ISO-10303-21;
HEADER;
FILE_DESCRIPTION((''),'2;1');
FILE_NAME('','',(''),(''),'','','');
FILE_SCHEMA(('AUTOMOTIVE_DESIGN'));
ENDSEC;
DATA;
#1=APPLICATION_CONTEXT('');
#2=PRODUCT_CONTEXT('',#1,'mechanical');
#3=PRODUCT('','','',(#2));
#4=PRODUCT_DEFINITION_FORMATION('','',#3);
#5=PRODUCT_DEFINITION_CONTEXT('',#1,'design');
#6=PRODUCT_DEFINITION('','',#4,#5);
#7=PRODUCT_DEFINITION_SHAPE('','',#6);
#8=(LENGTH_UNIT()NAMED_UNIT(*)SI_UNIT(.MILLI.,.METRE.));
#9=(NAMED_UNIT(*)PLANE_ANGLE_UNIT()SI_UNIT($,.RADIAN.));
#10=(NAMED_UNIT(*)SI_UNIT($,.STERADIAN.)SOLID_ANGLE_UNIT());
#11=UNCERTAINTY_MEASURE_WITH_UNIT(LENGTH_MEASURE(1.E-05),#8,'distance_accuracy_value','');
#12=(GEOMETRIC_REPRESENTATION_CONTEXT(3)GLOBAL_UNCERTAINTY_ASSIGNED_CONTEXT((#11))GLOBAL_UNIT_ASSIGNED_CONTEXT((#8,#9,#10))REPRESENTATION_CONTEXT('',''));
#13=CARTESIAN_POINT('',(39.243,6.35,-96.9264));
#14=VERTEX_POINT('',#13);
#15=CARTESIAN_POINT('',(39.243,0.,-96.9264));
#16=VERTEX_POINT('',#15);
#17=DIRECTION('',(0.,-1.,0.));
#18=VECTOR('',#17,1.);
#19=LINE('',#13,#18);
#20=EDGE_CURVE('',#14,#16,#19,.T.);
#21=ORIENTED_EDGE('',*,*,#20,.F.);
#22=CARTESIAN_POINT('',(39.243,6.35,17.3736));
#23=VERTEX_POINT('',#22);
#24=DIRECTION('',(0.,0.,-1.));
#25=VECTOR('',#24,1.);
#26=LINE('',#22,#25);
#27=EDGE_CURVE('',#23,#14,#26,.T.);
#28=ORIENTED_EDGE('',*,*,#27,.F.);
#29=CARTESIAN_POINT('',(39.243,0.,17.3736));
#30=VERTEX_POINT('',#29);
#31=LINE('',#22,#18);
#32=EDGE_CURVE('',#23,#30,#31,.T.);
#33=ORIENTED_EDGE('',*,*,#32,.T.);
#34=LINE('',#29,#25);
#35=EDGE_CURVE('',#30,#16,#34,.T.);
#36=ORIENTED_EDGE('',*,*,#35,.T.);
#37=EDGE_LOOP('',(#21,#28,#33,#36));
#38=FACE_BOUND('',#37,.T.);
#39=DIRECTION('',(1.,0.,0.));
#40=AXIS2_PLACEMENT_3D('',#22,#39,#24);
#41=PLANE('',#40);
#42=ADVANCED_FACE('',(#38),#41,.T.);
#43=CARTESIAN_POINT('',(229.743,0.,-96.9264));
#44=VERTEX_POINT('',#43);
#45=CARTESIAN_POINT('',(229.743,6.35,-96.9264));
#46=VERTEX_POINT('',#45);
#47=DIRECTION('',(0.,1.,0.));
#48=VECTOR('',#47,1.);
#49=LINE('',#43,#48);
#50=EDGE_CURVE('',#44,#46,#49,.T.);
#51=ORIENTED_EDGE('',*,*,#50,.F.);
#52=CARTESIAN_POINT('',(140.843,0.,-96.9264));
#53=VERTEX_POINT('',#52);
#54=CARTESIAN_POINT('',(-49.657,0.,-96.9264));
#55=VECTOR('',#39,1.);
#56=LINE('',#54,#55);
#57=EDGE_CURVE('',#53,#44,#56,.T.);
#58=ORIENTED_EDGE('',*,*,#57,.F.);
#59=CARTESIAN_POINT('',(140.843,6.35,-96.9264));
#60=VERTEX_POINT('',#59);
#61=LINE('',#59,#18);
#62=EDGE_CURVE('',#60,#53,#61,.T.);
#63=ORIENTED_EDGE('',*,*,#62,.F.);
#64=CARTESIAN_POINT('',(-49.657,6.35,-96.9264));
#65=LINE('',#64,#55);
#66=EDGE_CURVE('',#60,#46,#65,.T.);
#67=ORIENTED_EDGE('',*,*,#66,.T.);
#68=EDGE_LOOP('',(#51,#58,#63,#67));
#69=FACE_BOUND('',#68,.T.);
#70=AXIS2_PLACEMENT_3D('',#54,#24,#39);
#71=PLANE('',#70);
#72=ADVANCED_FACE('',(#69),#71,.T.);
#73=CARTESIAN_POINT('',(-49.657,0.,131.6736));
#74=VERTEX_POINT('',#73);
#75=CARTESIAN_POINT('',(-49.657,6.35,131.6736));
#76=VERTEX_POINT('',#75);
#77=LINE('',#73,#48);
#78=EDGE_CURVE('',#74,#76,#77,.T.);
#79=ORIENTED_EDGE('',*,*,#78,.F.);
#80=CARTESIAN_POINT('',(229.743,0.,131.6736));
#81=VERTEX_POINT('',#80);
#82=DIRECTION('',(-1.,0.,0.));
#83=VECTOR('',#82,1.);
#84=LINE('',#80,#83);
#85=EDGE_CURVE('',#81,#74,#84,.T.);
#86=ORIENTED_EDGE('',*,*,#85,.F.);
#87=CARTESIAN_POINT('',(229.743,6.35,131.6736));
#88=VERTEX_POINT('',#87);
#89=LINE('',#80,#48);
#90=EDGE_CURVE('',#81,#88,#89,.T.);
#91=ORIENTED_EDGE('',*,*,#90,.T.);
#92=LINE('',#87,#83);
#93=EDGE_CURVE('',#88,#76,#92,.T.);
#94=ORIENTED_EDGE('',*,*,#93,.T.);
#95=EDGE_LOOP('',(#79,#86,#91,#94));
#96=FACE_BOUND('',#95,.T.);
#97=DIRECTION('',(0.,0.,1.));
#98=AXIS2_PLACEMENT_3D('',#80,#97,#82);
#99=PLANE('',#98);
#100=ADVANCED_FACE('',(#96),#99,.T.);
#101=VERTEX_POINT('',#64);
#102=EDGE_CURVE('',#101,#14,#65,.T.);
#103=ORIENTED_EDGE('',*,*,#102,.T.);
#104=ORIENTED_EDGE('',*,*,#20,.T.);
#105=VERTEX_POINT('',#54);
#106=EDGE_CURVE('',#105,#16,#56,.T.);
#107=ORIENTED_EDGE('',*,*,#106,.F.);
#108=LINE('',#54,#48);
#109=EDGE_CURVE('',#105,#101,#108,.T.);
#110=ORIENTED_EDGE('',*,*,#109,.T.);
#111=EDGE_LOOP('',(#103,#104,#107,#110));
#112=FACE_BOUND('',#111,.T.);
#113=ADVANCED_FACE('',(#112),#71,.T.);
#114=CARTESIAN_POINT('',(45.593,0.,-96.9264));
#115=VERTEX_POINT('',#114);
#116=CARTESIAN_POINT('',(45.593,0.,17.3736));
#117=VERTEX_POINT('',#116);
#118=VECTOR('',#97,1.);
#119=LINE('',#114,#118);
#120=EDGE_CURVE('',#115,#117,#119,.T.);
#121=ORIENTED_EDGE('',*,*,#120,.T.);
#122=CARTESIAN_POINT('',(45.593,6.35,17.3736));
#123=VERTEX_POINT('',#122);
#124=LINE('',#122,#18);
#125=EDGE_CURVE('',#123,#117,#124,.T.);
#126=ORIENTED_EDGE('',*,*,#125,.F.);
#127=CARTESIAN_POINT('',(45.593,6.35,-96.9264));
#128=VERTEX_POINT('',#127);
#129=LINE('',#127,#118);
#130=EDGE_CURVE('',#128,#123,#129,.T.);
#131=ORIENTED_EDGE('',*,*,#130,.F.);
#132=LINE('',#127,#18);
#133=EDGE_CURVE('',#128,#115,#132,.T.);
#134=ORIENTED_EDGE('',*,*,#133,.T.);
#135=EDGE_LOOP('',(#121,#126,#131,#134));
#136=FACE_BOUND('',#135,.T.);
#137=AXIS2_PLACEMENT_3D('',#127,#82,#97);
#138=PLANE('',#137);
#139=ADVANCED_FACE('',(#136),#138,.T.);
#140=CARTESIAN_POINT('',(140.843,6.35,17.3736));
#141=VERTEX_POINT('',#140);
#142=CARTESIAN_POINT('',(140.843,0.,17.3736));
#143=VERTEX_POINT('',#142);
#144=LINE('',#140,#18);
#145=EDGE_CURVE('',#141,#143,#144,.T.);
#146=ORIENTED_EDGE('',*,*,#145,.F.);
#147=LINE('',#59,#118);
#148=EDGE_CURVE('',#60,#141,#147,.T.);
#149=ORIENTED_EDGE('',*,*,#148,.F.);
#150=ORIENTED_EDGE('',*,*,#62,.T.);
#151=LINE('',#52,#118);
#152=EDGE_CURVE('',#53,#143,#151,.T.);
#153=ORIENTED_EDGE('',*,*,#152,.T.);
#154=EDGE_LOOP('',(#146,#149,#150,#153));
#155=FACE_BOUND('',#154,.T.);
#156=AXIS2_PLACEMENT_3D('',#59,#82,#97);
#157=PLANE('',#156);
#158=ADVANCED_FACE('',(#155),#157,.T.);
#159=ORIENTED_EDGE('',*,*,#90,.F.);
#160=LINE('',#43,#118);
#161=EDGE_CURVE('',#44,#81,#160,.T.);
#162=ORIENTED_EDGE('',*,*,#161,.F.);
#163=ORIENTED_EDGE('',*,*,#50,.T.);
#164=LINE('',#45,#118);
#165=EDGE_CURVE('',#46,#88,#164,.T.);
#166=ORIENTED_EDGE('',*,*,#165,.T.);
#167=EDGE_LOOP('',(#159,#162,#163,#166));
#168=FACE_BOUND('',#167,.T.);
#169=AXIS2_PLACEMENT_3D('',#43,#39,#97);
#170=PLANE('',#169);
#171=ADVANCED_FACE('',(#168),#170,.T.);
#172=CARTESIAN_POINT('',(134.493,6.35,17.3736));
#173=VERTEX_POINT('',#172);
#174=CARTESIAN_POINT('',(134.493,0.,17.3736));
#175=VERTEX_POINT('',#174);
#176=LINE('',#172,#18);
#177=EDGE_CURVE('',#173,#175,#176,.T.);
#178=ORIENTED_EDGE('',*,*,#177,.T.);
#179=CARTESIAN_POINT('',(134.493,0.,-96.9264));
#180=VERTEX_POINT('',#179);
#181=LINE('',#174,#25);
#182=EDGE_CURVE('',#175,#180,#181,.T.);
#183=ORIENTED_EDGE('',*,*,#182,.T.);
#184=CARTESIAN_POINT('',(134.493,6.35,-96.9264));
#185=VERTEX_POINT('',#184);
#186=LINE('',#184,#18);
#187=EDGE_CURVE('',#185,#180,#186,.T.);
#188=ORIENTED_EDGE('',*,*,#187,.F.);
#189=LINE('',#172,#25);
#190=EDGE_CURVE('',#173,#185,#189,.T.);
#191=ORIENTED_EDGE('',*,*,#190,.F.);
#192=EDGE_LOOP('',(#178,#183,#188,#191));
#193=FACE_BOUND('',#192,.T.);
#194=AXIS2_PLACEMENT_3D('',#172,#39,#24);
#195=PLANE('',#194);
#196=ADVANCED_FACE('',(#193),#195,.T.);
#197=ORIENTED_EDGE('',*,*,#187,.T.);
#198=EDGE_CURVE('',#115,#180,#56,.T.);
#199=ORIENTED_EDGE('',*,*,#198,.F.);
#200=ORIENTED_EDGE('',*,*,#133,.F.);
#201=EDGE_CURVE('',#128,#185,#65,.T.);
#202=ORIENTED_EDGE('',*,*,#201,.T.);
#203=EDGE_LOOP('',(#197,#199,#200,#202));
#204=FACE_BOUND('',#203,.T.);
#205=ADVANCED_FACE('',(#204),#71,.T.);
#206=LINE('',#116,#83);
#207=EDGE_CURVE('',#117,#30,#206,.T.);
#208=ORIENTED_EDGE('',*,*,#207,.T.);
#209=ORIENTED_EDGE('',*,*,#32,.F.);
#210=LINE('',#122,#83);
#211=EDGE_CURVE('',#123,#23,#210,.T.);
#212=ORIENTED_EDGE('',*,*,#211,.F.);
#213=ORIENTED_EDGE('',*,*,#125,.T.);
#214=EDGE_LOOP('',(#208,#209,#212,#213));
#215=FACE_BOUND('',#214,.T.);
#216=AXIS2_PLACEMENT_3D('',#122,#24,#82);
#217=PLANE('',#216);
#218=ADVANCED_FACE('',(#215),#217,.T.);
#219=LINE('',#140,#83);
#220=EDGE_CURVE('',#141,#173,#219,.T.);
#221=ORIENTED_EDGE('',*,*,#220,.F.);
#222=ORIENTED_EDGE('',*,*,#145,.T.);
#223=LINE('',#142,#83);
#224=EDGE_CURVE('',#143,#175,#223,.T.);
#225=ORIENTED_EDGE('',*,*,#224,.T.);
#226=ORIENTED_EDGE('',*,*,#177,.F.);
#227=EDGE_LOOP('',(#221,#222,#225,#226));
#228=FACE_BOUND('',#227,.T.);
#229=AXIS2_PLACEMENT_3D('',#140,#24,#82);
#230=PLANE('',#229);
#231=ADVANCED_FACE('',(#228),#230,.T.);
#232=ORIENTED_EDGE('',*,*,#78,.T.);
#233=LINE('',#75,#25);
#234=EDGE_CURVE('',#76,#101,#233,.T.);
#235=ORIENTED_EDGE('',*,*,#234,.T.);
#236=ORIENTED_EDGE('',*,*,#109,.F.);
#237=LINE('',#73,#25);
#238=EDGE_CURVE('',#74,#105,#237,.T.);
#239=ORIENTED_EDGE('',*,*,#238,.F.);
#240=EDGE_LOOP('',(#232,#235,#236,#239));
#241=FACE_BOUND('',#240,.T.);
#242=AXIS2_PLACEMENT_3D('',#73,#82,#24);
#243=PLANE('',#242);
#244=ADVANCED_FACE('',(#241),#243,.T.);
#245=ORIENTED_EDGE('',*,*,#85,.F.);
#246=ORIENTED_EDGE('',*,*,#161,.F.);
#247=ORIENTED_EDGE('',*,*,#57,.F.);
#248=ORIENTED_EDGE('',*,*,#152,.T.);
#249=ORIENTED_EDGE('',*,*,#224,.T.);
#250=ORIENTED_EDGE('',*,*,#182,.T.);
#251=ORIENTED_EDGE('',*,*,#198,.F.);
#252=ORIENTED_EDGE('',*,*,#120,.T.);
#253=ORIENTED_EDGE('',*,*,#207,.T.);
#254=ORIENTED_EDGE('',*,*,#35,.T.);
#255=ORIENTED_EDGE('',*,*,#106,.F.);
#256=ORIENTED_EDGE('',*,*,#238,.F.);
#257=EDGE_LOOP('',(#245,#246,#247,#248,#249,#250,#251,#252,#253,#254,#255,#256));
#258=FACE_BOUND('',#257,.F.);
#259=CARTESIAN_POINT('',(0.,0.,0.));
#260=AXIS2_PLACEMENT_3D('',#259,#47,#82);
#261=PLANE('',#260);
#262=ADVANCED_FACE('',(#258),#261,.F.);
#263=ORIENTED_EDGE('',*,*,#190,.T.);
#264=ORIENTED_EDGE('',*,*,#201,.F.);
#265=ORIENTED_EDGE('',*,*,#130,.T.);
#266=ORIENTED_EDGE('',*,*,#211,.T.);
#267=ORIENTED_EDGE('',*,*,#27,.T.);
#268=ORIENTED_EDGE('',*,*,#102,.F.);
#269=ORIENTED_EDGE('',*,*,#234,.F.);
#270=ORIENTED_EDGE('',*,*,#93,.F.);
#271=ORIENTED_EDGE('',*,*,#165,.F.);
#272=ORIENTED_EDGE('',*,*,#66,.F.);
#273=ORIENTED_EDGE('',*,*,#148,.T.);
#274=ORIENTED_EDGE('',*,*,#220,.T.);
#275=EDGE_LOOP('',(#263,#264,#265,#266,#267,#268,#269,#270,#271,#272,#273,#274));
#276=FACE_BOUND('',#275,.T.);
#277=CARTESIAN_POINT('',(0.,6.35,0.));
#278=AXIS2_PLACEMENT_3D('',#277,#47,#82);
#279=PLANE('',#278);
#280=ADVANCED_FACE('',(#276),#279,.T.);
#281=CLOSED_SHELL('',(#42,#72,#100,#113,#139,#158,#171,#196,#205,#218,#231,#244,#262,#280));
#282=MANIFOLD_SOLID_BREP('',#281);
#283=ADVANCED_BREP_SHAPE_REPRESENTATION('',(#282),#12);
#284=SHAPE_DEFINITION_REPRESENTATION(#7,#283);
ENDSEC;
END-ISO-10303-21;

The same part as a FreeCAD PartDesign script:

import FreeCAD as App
import Part
import Sketcher
from FreeCAD import Vector
Q = App.Units.Quantity


def add_polygon(sketch, points):
    """Adds a closed chain of lines whose ends are joined by coincident constraints."""
    first, n = sketch.GeometryCount, len(points)
    for a, b in zip(points, points[1:] + points[:1]):
        sketch.addGeometry(Part.LineSegment(App.Vector(*a, 0), App.Vector(*b, 0)), False)
    for i in range(n):
        sketch.addConstraint(Sketcher.Constraint("Coincident", first + i, 2, first + (i + 1) % n, 1))

doc = App.newDocument("Part")
params = doc.addObject("Spreadsheet::Sheet", "Params")
for row, (alias, value) in enumerate([
    ("sketch1_width", "11 in"),
    ("sketch1_height", "9 in"),
    ("pad1_length", "0.25 in"),
    ("sketch2_height", "4.5 in"),
    ("sketch2_width", "0.25 in"),
    ("pocket1_length", "0.25 in"),
], start=1):
    params.set(f"A{row}", alias)
    params.set(f"B{row}", "=" + value)
    params.setAlias(f"B{row}", alias)

body = doc.addObject("PartDesign::Body", "Body")

# Sketch on XZ plane
sketch1 = body.newObject("Sketcher::SketchObject", "Sketch")
sketch1.AttachmentSupport = (doc.getObject("XZ_Plane"), [""])
sketch1.MapMode = "FlatFace"
add_polygon(sketch1, [(230, -97), (-50, -97), (-50, 132), (230, 132)])  # lines 0-3
sketch1.addConstraint([
    Sketcher.Constraint("Horizontal", 0),
    Sketcher.Constraint("Vertical", 1),
    Sketcher.Constraint("Horizontal", 2),
    Sketcher.Constraint("Vertical", 3),
    Sketcher.Constraint("DistanceX", 0, 2, 0, 1, Q("11 in")),
    Sketcher.Constraint("DistanceY", 1, 1, 1, 2, Q("9 in")),
    Sketcher.Constraint("DistanceX", 0, 2, -1, 1, Q("1.955 in")),
    Sketcher.Constraint("DistanceY", 0, 2, -1, 1, Q("3.816 in")),
])
sketch1.setExpression("Constraints[8]", "Params.sketch1_width")
sketch1.setExpression("Constraints[9]", "Params.sketch1_height")
pad1 = body.newObject("PartDesign::Pad", "Pad")
pad1.Profile = sketch1
pad1.setExpression("Length", "Params.pad1_length")
pad1.Reversed = True

# Sketch on XZ plane
sketch2 = body.newObject("Sketcher::SketchObject", "Sketch001")
sketch2.AttachmentSupport = (doc.getObject("XZ_Plane"), [""])
sketch2.MapMode = "FlatFace"
sketch2.AttachmentOffset = App.Placement(Vector(0, 0, -0.25 * 25.4), App.Rotation())
add_polygon(sketch2, [(46, -97), (39, -97), (39, 17), (46, 17)])  # lines 0-3
add_polygon(sketch2, [(141, -97), (134, -97), (134, 17), (141, 17)])  # lines 4-7
sketch2.addConstraint([
    Sketcher.Constraint("Horizontal", 0),
    Sketcher.Constraint("Vertical", 1),
    Sketcher.Constraint("Horizontal", 2),
    Sketcher.Constraint("Vertical", 3),
    Sketcher.Constraint("Horizontal", 4),
    Sketcher.Constraint("Vertical", 5),
    Sketcher.Constraint("Horizontal", 6),
    Sketcher.Constraint("Vertical", 7),
    Sketcher.Constraint("Horizontal", 3, 2, 4, 2),
    Sketcher.Constraint("Horizontal", 2, 2, 5, 2),
    Sketcher.Constraint("Equal", 2, 4),
    Sketcher.Constraint("DistanceY", 1, 1, 1, 2, Q("4.5 in")),
    Sketcher.Constraint("DistanceX", 0, 2, 0, 1, Q("0.25 in")),
    Sketcher.Constraint("DistanceX", 3, 2, 4, 2, Q("3.5 in")),
    Sketcher.Constraint("DistanceX", -1, 1, 0, 2, Q("1.545 in")),
    Sketcher.Constraint("DistanceY", 0, 2, -1, 1, Q("3.816 in")),
])
sketch2.setExpression("Constraints[19]", "Params.sketch2_height")
sketch2.setExpression("Constraints[20]", "Params.sketch2_width")
pocket1 = body.newObject("PartDesign::Pocket", "Pocket")
pocket1.Profile = sketch2
pocket1.setExpression("Length", "Params.pocket1_length")
pocket1.Reversed = True

doc.recompute()
